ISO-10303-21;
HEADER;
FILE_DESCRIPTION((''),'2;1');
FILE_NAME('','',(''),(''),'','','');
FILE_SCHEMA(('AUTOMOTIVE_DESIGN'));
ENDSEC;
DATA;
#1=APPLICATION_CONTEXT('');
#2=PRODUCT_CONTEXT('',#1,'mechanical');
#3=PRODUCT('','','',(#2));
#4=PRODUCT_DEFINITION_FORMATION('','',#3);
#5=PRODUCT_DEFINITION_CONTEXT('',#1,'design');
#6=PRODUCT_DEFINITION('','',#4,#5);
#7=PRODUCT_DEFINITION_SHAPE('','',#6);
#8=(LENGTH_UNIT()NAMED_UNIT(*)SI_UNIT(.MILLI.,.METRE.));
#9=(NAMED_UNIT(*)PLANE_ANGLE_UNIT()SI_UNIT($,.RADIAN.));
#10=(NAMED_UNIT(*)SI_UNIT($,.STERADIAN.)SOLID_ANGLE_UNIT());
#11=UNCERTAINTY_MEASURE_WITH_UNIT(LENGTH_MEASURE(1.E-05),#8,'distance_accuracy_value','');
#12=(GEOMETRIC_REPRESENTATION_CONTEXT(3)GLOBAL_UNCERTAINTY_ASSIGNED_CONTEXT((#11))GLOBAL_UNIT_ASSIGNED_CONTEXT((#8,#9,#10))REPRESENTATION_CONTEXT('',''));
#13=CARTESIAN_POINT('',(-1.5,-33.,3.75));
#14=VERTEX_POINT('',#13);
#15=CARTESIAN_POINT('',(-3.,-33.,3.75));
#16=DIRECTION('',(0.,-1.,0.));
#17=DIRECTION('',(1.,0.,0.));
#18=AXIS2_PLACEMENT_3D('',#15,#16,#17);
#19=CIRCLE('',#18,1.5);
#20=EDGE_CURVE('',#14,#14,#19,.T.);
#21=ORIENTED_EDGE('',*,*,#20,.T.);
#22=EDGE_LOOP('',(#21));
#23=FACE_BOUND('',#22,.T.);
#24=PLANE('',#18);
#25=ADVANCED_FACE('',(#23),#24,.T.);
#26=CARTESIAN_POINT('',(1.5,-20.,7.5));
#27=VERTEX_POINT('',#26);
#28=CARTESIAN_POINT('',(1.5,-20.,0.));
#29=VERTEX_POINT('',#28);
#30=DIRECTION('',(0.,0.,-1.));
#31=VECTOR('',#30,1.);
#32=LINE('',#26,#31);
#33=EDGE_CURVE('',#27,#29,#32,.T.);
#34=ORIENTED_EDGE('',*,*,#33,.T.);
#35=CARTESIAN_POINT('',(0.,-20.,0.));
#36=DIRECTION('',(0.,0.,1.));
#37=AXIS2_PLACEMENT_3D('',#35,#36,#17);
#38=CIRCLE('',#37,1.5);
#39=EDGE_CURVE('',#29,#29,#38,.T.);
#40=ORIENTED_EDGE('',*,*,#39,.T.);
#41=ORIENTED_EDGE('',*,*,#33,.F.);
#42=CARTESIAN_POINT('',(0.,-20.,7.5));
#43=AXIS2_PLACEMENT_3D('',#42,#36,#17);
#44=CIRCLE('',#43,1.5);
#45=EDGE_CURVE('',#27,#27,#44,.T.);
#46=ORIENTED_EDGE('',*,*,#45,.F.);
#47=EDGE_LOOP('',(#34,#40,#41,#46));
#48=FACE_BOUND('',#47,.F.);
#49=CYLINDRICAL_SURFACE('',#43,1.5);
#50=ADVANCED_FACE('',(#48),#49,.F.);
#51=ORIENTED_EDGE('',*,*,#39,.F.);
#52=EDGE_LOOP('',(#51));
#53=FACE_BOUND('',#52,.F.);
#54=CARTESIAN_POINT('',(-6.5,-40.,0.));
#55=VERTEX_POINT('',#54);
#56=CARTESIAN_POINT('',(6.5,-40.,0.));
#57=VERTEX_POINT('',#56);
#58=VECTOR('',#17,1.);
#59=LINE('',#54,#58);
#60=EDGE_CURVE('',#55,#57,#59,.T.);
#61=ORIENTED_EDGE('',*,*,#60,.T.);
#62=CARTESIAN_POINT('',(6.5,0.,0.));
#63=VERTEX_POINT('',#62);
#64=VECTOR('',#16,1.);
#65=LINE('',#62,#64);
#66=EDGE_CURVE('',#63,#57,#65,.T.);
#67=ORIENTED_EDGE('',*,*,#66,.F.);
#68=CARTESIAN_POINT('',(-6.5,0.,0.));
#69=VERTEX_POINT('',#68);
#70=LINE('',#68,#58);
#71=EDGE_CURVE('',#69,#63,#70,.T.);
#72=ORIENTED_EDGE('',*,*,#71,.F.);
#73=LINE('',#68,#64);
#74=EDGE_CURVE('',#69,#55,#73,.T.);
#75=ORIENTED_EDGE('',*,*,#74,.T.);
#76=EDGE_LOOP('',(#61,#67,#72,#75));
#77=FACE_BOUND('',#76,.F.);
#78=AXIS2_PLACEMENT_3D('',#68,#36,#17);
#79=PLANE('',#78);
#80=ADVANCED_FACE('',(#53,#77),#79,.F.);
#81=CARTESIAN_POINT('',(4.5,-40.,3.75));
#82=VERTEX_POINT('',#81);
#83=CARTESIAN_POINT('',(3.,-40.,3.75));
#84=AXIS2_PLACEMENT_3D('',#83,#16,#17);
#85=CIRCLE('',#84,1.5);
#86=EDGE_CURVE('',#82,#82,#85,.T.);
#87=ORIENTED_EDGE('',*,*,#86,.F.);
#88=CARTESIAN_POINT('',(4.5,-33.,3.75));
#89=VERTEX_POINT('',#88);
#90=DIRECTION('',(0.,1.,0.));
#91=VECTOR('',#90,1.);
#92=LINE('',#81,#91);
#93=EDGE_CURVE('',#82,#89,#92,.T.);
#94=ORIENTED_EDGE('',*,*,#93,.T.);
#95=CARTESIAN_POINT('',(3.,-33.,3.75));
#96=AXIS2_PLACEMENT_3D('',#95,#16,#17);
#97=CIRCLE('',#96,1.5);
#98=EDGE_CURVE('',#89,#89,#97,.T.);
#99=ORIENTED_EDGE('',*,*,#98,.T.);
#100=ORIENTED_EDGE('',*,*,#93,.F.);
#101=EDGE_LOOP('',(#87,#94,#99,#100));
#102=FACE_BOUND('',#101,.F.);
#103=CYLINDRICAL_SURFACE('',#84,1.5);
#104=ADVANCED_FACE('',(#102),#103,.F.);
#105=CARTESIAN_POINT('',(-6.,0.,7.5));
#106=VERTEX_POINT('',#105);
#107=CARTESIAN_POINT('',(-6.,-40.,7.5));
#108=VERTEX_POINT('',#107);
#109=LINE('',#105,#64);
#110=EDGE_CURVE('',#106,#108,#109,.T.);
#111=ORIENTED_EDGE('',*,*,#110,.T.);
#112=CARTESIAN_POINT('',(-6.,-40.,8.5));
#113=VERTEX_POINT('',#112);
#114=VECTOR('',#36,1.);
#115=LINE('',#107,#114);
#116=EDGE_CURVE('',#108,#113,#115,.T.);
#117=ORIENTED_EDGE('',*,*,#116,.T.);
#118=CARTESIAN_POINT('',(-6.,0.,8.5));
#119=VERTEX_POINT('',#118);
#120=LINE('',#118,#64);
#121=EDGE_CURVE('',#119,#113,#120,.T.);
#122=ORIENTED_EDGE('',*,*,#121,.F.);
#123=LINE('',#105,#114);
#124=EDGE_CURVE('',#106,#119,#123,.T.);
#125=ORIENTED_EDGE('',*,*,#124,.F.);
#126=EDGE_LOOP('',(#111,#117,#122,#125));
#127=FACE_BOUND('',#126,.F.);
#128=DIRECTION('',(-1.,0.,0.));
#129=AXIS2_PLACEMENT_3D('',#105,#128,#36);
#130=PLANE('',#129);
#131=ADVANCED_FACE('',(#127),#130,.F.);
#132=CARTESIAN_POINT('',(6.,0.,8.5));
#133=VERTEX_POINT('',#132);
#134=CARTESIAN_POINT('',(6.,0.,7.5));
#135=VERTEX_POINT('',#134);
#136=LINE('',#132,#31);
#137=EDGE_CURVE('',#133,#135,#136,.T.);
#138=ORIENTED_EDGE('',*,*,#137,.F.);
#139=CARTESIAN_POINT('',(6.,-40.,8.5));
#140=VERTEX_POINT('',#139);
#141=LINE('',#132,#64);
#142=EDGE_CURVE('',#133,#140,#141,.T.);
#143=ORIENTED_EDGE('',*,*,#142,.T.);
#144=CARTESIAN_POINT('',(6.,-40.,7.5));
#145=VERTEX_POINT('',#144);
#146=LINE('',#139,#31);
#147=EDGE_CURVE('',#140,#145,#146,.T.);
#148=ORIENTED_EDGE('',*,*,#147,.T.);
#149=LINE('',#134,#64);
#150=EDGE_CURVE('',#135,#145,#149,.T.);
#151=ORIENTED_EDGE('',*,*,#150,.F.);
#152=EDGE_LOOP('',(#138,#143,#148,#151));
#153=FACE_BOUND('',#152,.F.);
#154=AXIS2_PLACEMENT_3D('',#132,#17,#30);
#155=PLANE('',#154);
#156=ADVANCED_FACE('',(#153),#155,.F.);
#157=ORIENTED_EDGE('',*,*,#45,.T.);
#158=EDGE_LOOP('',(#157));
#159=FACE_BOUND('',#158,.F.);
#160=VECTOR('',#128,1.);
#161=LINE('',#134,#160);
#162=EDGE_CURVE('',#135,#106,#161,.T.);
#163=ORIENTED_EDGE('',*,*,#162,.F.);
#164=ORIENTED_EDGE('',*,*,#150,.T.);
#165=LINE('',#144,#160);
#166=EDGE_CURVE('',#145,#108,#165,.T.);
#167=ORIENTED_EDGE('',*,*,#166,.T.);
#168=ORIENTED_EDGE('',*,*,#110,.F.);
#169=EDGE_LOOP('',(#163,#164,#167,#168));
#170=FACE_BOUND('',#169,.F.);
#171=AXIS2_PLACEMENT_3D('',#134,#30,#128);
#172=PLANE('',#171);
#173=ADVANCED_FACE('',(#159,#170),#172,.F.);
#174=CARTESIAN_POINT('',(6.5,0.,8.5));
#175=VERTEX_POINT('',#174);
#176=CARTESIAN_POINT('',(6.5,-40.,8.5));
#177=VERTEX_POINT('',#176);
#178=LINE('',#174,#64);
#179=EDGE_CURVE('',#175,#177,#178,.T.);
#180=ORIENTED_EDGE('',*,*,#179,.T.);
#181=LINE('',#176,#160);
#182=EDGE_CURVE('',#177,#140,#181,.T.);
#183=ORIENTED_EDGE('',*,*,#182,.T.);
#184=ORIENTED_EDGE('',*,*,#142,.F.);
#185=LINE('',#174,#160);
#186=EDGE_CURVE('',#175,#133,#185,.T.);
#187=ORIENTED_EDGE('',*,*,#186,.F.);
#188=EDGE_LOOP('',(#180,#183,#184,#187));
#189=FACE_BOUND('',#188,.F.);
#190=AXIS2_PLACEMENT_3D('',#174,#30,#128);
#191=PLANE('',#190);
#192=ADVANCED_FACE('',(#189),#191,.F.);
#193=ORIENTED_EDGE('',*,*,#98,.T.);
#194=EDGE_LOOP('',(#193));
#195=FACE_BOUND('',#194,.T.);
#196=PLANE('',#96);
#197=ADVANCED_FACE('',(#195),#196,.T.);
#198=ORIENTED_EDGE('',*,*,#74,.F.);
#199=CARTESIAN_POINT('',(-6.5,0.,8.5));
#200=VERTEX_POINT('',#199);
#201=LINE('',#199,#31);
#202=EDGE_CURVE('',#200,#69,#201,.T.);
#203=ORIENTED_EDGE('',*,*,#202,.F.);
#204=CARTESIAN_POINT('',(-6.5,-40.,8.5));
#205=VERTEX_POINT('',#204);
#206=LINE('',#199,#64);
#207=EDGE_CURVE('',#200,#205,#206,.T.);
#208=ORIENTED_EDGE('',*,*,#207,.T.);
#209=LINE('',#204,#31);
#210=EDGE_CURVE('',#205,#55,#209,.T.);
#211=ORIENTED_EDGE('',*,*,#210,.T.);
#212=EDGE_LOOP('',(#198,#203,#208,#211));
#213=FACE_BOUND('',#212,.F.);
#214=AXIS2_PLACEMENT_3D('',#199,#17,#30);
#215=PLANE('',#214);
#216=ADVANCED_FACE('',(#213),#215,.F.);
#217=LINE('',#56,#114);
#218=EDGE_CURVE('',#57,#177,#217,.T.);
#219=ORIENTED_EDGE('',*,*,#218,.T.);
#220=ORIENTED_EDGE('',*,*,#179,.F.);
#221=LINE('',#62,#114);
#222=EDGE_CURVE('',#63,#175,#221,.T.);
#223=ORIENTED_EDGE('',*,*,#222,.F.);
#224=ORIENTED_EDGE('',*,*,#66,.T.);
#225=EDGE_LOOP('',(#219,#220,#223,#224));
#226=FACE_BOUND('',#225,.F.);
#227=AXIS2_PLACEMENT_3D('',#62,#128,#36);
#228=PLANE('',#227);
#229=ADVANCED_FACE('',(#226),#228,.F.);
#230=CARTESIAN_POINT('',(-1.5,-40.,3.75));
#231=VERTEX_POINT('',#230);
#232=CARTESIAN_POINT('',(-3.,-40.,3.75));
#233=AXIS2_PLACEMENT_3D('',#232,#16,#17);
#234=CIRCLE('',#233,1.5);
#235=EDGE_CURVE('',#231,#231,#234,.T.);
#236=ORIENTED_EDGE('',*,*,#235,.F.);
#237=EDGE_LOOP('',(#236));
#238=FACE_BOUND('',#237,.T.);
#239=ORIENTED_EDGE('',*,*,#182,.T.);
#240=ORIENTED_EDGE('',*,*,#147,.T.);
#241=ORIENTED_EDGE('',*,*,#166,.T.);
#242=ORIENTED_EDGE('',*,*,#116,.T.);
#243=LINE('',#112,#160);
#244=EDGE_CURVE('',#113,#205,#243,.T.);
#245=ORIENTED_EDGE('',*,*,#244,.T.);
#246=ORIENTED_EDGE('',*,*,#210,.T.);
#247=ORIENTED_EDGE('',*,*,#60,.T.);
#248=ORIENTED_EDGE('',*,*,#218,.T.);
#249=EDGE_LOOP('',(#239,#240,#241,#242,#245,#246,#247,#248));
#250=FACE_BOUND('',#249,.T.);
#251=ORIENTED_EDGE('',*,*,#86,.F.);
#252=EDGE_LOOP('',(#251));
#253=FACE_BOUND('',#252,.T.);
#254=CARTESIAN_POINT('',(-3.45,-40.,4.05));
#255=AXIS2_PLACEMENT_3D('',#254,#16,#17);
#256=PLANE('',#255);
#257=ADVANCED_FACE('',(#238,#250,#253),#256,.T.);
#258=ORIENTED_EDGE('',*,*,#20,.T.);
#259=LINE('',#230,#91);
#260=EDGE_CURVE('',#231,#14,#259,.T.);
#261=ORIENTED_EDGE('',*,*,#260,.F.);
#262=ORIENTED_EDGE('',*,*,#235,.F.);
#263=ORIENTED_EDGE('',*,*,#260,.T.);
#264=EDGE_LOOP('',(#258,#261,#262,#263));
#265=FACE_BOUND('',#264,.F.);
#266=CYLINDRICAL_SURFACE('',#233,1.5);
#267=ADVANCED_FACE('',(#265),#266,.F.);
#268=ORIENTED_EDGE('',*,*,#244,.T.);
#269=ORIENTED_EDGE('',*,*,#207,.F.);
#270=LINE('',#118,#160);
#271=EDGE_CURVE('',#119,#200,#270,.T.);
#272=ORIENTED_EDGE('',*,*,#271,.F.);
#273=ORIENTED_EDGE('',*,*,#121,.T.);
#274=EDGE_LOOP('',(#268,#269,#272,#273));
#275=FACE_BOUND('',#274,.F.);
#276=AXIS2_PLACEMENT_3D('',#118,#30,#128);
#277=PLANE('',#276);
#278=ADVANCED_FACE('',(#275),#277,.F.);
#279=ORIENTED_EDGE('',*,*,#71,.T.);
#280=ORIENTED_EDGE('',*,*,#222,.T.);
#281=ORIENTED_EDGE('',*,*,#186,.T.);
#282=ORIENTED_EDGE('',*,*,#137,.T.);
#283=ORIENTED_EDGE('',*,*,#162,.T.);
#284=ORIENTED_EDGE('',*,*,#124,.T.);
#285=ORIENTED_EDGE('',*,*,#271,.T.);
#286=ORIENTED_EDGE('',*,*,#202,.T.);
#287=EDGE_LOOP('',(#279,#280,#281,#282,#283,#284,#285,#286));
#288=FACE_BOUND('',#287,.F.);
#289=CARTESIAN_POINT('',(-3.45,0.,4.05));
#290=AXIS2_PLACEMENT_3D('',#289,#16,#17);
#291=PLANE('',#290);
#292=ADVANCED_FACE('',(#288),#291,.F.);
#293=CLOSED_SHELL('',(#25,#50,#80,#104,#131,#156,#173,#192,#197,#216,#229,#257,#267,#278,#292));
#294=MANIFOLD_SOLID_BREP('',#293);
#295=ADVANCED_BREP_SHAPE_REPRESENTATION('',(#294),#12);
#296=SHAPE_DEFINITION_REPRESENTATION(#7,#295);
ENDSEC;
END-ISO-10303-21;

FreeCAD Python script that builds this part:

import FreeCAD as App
import Part
import Sketcher

V = App.Vector
Q = App.Units.Quantity

doc = App.newDocument("Part")
params = doc.addObject("Spreadsheet::Sheet", "Params")
for row, (alias, value) in enumerate([
    ("sketch1_width", "13 mm"),
    ("sketch1_width2", "12 mm"),
    ("sketch1_height", "1 mm"),
    ("sketch1_height2", "8.5 mm"),
    ("pad1_length", "40 mm"),
    ("sketch2_diameter", "3 mm"),
    ("pocket1_length", "25 mm"),
    ("sketch3_diameter", "3 mm"),
    ("pocket2_length", "7 mm"),
], start=1):
    params.set(f"A{row}", alias)
    params.set(f"B{row}", "=" + value)
    params.setAlias(f"B{row}", alias)

body = doc.addObject("PartDesign::Body", "Body")

# Sketch on XZ plane
sketch1 = body.newObject("Sketcher::SketchObject", "Sketch")
sketch1.AttachmentSupport = (doc.getObject("XZ_Plane"), [""])
sketch1.MapMode = "FlatFace"
sketch1.addGeometry([
    Part.LineSegment(V(-6, 7.5, 0), V(-6, 8.5, 0)),  # 0
    Part.LineSegment(V(-6, 8.5, 0), V(-6.5, 8.5, 0)),  # 1
    Part.LineSegment(V(-6.5, 8.5, 0), V(-6.5, 0, 0)),  # 2
    Part.LineSegment(V(-6.5, 0, 0), V(6.5, 0, 0)),  # 3
    Part.LineSegment(V(6.5, 0, 0), V(6.5, 8.5, 0)),  # 4
    Part.LineSegment(V(6.5, 8.5, 0), V(6, 8.5, 0)),  # 5
    Part.LineSegment(V(6, 8.5, 0), V(6, 7.5, 0)),  # 6
    Part.LineSegment(V(6, 7.5, 0), V(-6, 7.5, 0)),  # 7
], False)
sketch1.addConstraint([
    Sketcher.Constraint("Coincident", 0, 2, 1, 1),
    Sketcher.Constraint("Coincident", 1, 2, 2, 1),
    Sketcher.Constraint("Coincident", 2, 2, 3, 1),
    Sketcher.Constraint("Coincident", 3, 2, 4, 1),
    Sketcher.Constraint("Coincident", 4, 2, 5, 1),
    Sketcher.Constraint("Coincident", 5, 2, 6, 1),
    Sketcher.Constraint("Coincident", 6, 2, 7, 1),
    Sketcher.Constraint("Coincident", 7, 2, 0, 1),
    Sketcher.Constraint("Vertical", 0),
    Sketcher.Constraint("Horizontal", 1),
    Sketcher.Constraint("Vertical", 2),
    Sketcher.Constraint("Horizontal", 3),
    Sketcher.Constraint("Vertical", 4),
    Sketcher.Constraint("Horizontal", 5),
    Sketcher.Constraint("Vertical", 6),
    Sketcher.Constraint("Horizontal", 7),
    Sketcher.Constraint("Symmetric", 2, 2, 3, 2, -1, 1),
    Sketcher.Constraint("Symmetric", 0, 2, 5, 2, -2),
    Sketcher.Constraint("DistanceX", 3, 1, 3, 2, Q("13 mm")),
    Sketcher.Constraint("DistanceX", 7, 2, 7, 1, Q("12 mm")),
    Sketcher.Constraint("DistanceY", 0, 1, 0, 2, Q("1 mm")),
    Sketcher.Constraint("DistanceY", 2, 2, 2, 1, Q("8.5 mm")),
])
sketch1.setExpression("Constraints[18]", "Params.sketch1_width")
sketch1.setExpression("Constraints[19]", "Params.sketch1_width2")
sketch1.setExpression("Constraints[20]", "Params.sketch1_height")
sketch1.setExpression("Constraints[21]", "Params.sketch1_height2")
pad1 = body.newObject("PartDesign::Pad", "Pad")
pad1.Profile = sketch1
pad1.setExpression("Length", "Params.pad1_length")

# Sketch on XY plane
sketch2 = body.newObject("Sketcher::SketchObject", "Sketch001")
sketch2.AttachmentSupport = (doc.getObject("XY_Plane"), [""])
sketch2.MapMode = "FlatFace"
sketch2.AttachmentOffset = App.Placement(V(0, 0, 7.5), App.Rotation())
sketch2.addGeometry(Part.Circle(V(0, -20, 0), V(0, 0, 1), 1.5), False)
sketch2.addConstraint([
    Sketcher.Constraint("PointOnObject", 0, 3, -2),
    Sketcher.Constraint("Diameter", 0, Q("3 mm")),
    Sketcher.Constraint("DistanceY", 0, 3, -1, 1, Q("20 mm")),
])
sketch2.setExpression("Constraints[1]", "Params.sketch2_diameter")
pocket1 = body.newObject("PartDesign::Pocket", "Pocket")
pocket1.Profile = sketch2
pocket1.setExpression("Length", "Params.pocket1_length")

# Sketch on XZ plane
sketch3 = body.newObject("Sketcher::SketchObject", "Sketch002")
sketch3.AttachmentSupport = (doc.getObject("XZ_Plane"), [""])
sketch3.MapMode = "FlatFace"
sketch3.AttachmentOffset = App.Placement(V(0, 0, 40), App.Rotation())
sketch3.addGeometry([
    Part.Circle(V(-3, 3.8, 0), V(0, 0, 1), 1.5),
    Part.Circle(V(3, 3.8, 0), V(0, 0, 1), 1.5),
], False)
sketch3.addConstraint([
    Sketcher.Constraint("Equal", 0, 1),
    Sketcher.Constraint("Symmetric", 0, 3, 1, 3, -2),
    Sketcher.Constraint("Diameter", 0, Q("3 mm")),
    Sketcher.Constraint("DistanceX", 0, 3, -1, 1, Q("3 mm")),
    Sketcher.Constraint("DistanceY", -1, 1, 0, 3, Q("3.75 mm")),
])
sketch3.setExpression("Constraints[2]", "Params.sketch3_diameter")
pocket2 = body.newObject("PartDesign::Pocket", "Pocket001")
pocket2.Profile = sketch3
pocket2.setExpression("Length", "Params.pocket2_length")

doc.recompute()
